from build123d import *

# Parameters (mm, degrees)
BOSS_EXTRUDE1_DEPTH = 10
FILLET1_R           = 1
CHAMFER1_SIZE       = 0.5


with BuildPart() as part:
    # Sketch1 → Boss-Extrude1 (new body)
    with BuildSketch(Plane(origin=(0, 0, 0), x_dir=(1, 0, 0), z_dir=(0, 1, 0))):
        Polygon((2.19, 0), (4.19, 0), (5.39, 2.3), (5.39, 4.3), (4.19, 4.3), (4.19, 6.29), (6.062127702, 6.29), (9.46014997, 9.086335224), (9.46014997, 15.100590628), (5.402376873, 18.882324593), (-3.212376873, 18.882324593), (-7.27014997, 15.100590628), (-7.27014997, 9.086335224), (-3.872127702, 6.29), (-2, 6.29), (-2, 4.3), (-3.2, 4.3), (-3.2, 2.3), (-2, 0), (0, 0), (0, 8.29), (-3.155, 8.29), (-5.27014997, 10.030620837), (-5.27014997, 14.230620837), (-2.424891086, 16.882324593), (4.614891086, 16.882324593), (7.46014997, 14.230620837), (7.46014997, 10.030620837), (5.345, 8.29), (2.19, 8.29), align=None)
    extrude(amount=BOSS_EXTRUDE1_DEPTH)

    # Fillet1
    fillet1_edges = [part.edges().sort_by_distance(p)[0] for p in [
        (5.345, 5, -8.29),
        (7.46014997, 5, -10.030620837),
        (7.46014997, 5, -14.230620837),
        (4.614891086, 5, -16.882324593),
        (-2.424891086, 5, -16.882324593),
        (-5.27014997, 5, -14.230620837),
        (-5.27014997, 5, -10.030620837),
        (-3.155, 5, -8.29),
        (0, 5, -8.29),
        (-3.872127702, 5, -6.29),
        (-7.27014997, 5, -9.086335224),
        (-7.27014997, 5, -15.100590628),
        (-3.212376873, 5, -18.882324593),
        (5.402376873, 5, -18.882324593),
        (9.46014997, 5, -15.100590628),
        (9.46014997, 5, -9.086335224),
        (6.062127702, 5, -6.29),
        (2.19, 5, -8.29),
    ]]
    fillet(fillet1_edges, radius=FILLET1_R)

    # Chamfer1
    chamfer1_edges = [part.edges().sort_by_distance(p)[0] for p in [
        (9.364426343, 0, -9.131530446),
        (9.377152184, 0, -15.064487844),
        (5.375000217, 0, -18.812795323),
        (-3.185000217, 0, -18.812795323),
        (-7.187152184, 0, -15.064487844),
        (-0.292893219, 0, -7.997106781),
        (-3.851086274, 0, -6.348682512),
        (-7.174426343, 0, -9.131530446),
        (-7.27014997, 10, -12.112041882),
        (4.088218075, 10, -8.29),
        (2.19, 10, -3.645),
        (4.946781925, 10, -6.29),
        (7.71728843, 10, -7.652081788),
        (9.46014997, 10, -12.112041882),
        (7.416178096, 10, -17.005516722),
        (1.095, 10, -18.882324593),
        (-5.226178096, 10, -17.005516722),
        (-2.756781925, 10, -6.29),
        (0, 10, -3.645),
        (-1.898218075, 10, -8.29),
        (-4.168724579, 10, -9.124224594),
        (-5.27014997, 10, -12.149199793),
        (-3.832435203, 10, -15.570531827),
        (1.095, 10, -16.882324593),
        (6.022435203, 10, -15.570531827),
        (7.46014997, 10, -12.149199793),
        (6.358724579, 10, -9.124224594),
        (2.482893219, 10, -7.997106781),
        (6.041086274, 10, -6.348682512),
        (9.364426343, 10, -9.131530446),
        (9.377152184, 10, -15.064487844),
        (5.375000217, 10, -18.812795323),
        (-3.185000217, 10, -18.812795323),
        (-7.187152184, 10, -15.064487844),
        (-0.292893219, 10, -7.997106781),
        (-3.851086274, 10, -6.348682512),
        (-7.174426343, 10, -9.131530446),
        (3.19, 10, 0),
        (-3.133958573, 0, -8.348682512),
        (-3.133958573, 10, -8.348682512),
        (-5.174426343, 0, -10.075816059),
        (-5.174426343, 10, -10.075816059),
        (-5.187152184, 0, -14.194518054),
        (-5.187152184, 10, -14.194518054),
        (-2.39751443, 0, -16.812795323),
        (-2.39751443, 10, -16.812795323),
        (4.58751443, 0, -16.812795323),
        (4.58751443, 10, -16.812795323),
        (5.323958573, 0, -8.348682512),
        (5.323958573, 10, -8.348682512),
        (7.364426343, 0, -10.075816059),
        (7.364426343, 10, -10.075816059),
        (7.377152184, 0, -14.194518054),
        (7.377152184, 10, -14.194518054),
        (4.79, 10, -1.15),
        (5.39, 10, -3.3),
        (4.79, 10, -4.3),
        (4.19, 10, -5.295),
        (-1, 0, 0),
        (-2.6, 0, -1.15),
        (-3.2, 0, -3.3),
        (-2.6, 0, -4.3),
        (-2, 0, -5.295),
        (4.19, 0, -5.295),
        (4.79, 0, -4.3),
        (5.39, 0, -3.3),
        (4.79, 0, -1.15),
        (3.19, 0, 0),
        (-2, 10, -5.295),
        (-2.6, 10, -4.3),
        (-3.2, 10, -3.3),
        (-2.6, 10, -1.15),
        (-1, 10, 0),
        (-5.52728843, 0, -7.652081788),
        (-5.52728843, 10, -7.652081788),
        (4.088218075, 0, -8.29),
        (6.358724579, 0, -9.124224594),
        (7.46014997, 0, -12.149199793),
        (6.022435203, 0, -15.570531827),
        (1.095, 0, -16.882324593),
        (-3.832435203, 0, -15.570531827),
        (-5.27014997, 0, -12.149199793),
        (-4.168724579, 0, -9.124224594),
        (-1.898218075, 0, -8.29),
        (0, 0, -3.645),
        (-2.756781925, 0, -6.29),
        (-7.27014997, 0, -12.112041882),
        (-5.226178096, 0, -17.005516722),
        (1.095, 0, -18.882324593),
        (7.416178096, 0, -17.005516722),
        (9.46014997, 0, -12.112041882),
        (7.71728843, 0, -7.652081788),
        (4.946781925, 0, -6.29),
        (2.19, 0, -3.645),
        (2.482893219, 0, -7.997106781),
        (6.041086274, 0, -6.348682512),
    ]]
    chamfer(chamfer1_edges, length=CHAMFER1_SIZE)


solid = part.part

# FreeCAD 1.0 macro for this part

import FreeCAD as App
import Part
import Sketcher
Q = App.Units.Quantity


def edges_at(feature, points):
    """Names of the edges that pass closest to the given points."""
    edges = feature.Shape.Edges
    near = lambda p: min(range(len(edges)), key=lambda i: edges[i].distToShape(Part.Vertex(*p))[0])
    return sorted({f"Edge{near(p) + 1}" for p in points})


def add_polygon(sketch, points):
    """Adds a closed chain of lines whose ends are joined by coincident constraints."""
    first, n = sketch.GeometryCount, len(points)
    for a, b in zip(points, points[1:] + points[:1]):
        sketch.addGeometry(Part.LineSegment(App.Vector(*a, 0), App.Vector(*b, 0)), False)
    for i in range(n):
        sketch.addConstraint(Sketcher.Constraint("Coincident", first + i, 2, first + (i + 1) % n, 1))

doc = App.newDocument("Part")
body = doc.addObject("PartDesign::Body", "Body")

# Sketch on XZ plane
sketch1 = body.newObject("Sketcher::SketchObject", "Sketch")
sketch1.AttachmentSupport = (doc.getObject("XZ_Plane"), [""])
sketch1.MapMode = "FlatFace"
add_polygon(sketch1, [(2.19, 0), (4.19, 0), (5.39, -2.3), (5.39, -4.3), (4.19, -4.3), (4.19, -6.29), (6.062128, -6.29), (9.46015, -9.086335), (9.46015, -15.100591), (5.402377, -18.882325), (-3.212377, -18.882325), (-7.27015, -15.100591), (-7.27015, -9.086335), (-3.872128, -6.29), (-2, -6.29), (-2, -4.3), (-3.2, -4.3), (-3.2, -2.3), (-2, 0), (0, 0), (0, -8.29), (-3.155, -8.29), (-5.27015, -10.030621), (-5.27015, -14.230621), (-2.424891, -16.882325), (4.614891, -16.882325), (7.46015, -14.230621), (7.46015, -10.030621), (5.345, -8.29), (2.19, -8.29)])  # lines 0-29
sketch1.addConstraint([
    Sketcher.Constraint("Horizontal", 0),
    Sketcher.Constraint("Vertical", 2),
    Sketcher.Constraint("Horizontal", 3),
    Sketcher.Constraint("Vertical", 4),
    Sketcher.Constraint("Horizontal", 5),
    Sketcher.Constraint("Vertical", 7),
    Sketcher.Constraint("Horizontal", 9),
    Sketcher.Constraint("Vertical", 11),
    Sketcher.Constraint("Horizontal", 13),
    Sketcher.Constraint("Vertical", 14),
    Sketcher.Constraint("Horizontal", 15),
    Sketcher.Constraint("Vertical", 16),
    Sketcher.Constraint("Horizontal", 18),
    Sketcher.Constraint("Vertical", 19),
    Sketcher.Constraint("Horizontal", 20),
    Sketcher.Constraint("Vertical", 22),
    Sketcher.Constraint("Horizontal", 24),
    Sketcher.Constraint("Vertical", 26),
    Sketcher.Constraint("Horizontal", 28),
    Sketcher.Constraint("Vertical", 29),
    Sketcher.Constraint("Coincident", 18, 2, -1, 1),
    Sketcher.Constraint("PointOnObject", 0, 2, -1),
    Sketcher.Constraint("Parallel", 12, 21),
    Sketcher.Constraint("Parallel", 10, 23),
    Sketcher.Constraint("Parallel", 8, 25),
    Sketcher.Constraint("Parallel", 6, 27),
    Sketcher.Constraint("Horizontal", 7, 2, 10, 2),
    Sketcher.Constraint("Horizontal", 6, 2, 11, 2),
    Sketcher.Constraint("Horizontal", 5, 2, 12, 2),
    Sketcher.Constraint("Horizontal", 3, 2, 14, 2),
    Sketcher.Constraint("Horizontal", 1, 2, 16, 2),
    Sketcher.Constraint("Horizontal", 22, 2, 25, 2),
    Sketcher.Constraint("Horizontal", 21, 2, 26, 2),
    Sketcher.Constraint("Horizontal", 20, 2, 27, 2),
    Sketcher.Constraint("Vertical", 0, 2, 3, 2),
    Sketcher.Constraint("Vertical", 14, 2, 17, 2),
    Sketcher.Constraint("Equal", 5, 13),
    Sketcher.Constraint("Equal", 3, 15),
    Sketcher.Constraint("Equal", 0, 18),
    Sketcher.Constraint("Equal", 20, 28),
    Sketcher.Constraint("Equal", 18, 2),
    Sketcher.Constraint("Equal", 8, 10),
    Sketcher.Constraint("Equal", 6, 12),
    Sketcher.Constraint("DistanceX", 0, 1, 0, 2, Q("2 mm")),
    Sketcher.Constraint("DistanceX", 3, 2, 3, 1, Q("1.2 mm")),
    Sketcher.Constraint("DistanceY", 22, 2, 22, 1, Q("4.2 mm")),
    Sketcher.Constraint("DistanceY", 19, 2, 13, 2, Q("2 mm")),
    Sketcher.Constraint("DistanceX", 11, 2, 21, 2, Q("2 mm")),
    Sketcher.Constraint("DistanceY", 9, 2, 23, 2, Q("2 mm")),
    Sketcher.Constraint("DistanceY", 4, 2, 4, 1, Q("1.99 mm")),
    Sketcher.Constraint("DistanceY", 19, 2, 19, 1, Q("8.29 mm")),
    Sketcher.Constraint("DistanceX", 20, 2, 20, 1, Q("3.155 mm")),
    Sketcher.Constraint("DistanceX", -1, 1, 0, 2, Q("4.19 mm")),
    Sketcher.Constraint("Distance", 23, Q("3.889348 mm")),
    Sketcher.Constraint("DistanceX", 5, 1, 5, 2, Q("1.872128 mm")),
    Sketcher.Constraint("DistanceX", 9, 2, 9, 1, Q("8.614754 mm")),
    Sketcher.Constraint("DistanceX", 24, 1, 24, 2, Q("7.039782 mm")),
    Sketcher.Constraint("DistanceY", 7, 2, 7, 1, Q("6.014255 mm")),
    Sketcher.Constraint("DistanceX", -1, 1, 6, 2, Q("9.46015 mm")),
])
pad1 = body.newObject("PartDesign::Pad", "Pad")
pad1.Profile = sketch1
pad1.Length = 10
pad1.Reversed = True
doc.recompute()

fillet = body.newObject("PartDesign::Fillet", "Fillet")
fillet.Base = (pad1, edges_at(pad1, [
    (5.345, 5, -8.29),
    (7.46, 5, -10.031),
    (7.46, 5, -14.231),
    (4.615, 5, -16.882),
    (-2.425, 5, -16.882),
    (-5.27, 5, -14.231),
    (-5.27, 5, -10.031),
    (-3.155, 5, -8.29),
    (0, 5, -8.29),
    (-3.872, 5, -6.29),
    (-7.27, 5, -9.086),
    (-7.27, 5, -15.101),
    (-3.212, 5, -18.882),
    (5.402, 5, -18.882),
    (9.46, 5, -15.101),
    (9.46, 5, -9.086),
    (6.062, 5, -6.29),
    (2.19, 5, -8.29),
]))
fillet.Radius = 1
doc.recompute()

chamfer = body.newObject("PartDesign::Chamfer", "Chamfer")
chamfer.Base = (fillet, edges_at(fillet, [
    (9.364, 0, -9.132),
    (9.377, 0, -15.064),
    (5.375, 0, -18.813),
    (-3.185, 0, -18.813),
    (-7.187, 0, -15.064),
    (-0.293, 0, -7.997),
    (-3.851, 0, -6.349),
    (-7.174, 0, -9.132),
    (-7.27, 10, -12.112),
    (4.088, 10, -8.29),
    (2.19, 10, -3.645),
    (4.947, 10, -6.29),
    (7.717, 10, -7.652),
    (9.46, 10, -12.112),
    (7.416, 10, -17.006),
    (1.095, 10, -18.882),
    (-5.226, 10, -17.006),
    (-2.757, 10, -6.29),
    (0, 10, -3.645),
    (-1.898, 10, -8.29),
    (-4.169, 10, -9.124),
    (-5.27, 10, -12.149),
    (-3.832, 10, -15.571),
    (1.095, 10, -16.882),
    (6.022, 10, -15.571),
    (7.46, 10, -12.149),
    (6.359, 10, -9.124),
    (2.483, 10, -7.997),
    (6.041, 10, -6.349),
    (9.364, 10, -9.132),
    (9.377, 10, -15.064),
    (5.375, 10, -18.813),
    (-3.185, 10, -18.813),
    (-7.187, 10, -15.064),
    (-0.293, 10, -7.997),
    (-3.851, 10, -6.349),
    (-7.174, 10, -9.132),
    (3.19, 10, 0),
    (-3.134, 0, -8.349),
    (-3.134, 10, -8.349),
    (-5.174, 0, -10.076),
    (-5.174, 10, -10.076),
    (-5.187, 0, -14.195),
    (-5.187, 10, -14.195),
    (-2.398, 0, -16.813),
    (-2.398, 10, -16.813),
    (4.588, 0, -16.813),
    (4.588, 10, -16.813),
    (5.324, 0, -8.349),
    (5.324, 10, -8.349),
    (7.364, 0, -10.076),
    (7.364, 10, -10.076),
    (7.377, 0, -14.195),
    (7.377, 10, -14.195),
    (4.79, 10, -1.15),
    (5.39, 10, -3.3),
    (4.79, 10, -4.3),
    (4.19, 10, -5.295),
    (-1, 0, 0),
    (-2.6, 0, -1.15),
    (-3.2, 0, -3.3),
    (-2.6, 0, -4.3),
    (-2, 0, -5.295),
    (4.19, 0, -5.295),
    (4.79, 0, -4.3),
    (5.39, 0, -3.3),
    (4.79, 0, -1.15),
    (3.19, 0, 0),
    (-2, 10, -5.295),
    (-2.6, 10, -4.3),
    (-3.2, 10, -3.3),
    (-2.6, 10, -1.15),
    (-1, 10, 0),
    (-5.527, 0, -7.652),
    (-5.527, 10, -7.652),
    (4.088, 0, -8.29),
    (6.359, 0, -9.124),
    (7.46, 0, -12.149),
    (6.022, 0, -15.571),
    (1.095, 0, -16.882),
    (-3.832, 0, -15.571),
    (-5.27, 0, -12.149),
    (-4.169, 0, -9.124),
    (-1.898, 0, -8.29),
    (0, 0, -3.645),
    (-2.757, 0, -6.29),
    (-7.27, 0, -12.112),
    (-5.226, 0, -17.006),
    (1.095, 0, -18.882),
    (7.416, 0, -17.006),
    (9.46, 0, -12.112),
    (7.717, 0, -7.652),
    (4.947, 0, -6.29),
    (2.19, 0, -3.645),
    (2.483, 0, -7.997),
    (6.041, 0, -6.349),
]))
chamfer.Size = 0.5

doc.recompute()
